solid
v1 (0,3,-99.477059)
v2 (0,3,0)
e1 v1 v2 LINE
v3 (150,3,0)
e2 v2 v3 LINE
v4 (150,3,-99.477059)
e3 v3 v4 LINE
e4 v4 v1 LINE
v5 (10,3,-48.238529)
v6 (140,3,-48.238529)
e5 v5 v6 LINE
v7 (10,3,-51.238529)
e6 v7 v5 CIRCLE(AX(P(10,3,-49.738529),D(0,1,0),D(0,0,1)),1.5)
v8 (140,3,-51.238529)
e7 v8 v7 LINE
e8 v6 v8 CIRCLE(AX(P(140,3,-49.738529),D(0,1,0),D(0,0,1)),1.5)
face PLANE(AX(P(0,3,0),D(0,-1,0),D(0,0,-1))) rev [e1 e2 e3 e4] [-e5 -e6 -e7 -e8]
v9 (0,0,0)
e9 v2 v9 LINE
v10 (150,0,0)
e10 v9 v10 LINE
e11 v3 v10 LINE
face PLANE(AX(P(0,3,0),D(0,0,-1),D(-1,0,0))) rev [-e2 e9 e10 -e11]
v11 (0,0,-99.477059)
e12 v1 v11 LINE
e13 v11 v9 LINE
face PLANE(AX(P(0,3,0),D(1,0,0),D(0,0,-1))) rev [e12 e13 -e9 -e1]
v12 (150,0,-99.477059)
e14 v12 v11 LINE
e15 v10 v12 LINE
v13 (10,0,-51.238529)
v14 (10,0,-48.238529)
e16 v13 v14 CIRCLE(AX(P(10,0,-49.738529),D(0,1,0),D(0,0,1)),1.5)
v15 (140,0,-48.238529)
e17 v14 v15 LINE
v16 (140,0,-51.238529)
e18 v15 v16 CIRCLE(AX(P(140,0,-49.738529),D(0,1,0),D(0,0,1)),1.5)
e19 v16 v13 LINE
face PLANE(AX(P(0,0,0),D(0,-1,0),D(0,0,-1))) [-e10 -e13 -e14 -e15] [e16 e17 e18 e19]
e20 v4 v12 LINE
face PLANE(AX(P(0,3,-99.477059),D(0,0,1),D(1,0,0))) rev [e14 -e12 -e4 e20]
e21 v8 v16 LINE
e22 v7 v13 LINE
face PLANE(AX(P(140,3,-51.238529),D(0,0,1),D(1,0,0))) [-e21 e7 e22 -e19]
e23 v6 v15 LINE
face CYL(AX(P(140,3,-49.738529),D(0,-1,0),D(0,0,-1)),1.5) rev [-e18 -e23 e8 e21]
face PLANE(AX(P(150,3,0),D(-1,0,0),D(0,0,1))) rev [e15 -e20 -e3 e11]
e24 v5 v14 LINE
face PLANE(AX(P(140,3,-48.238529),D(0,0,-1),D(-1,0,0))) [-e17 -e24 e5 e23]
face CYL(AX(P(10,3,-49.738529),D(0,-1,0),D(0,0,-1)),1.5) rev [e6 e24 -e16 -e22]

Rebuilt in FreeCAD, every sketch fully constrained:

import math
import FreeCAD as App
import Part
import Sketcher
Q = App.Units.Quantity


def add_polygon(sketch, points):
    """Adds a closed chain of lines whose ends are joined by coincident constraints."""
    first, n = sketch.GeometryCount, len(points)
    for a, b in zip(points, points[1:] + points[:1]):
        sketch.addGeometry(Part.LineSegment(App.Vector(*a, 0), App.Vector(*b, 0)), False)
    for i in range(n):
        sketch.addConstraint(Sketcher.Constraint("Coincident", first + i, 2, first + (i + 1) % n, 1))

doc = App.newDocument("Part")
body = doc.addObject("PartDesign::Body", "Body")

# Sketch on XZ plane
sketch1 = body.newObject("Sketcher::SketchObject", "Sketch")
sketch1.AttachmentSupport = (doc.getObject("XZ_Plane"), [""])
sketch1.MapMode = "FlatFace"
add_polygon(sketch1, [(0, -99.477059), (0, 0), (150, 0), (150, -99.477059)])  # lines 0-3
sketch1.addGeometry(Part.ArcOfCircle(Part.Circle(App.Vector(140, -49.738529, 0), App.Vector(0, 0, 1), 1.5), math.radians(-90), math.radians(90)), False)  # 4
sketch1.addGeometry(Part.LineSegment(App.Vector(140, -48.238529, 0), App.Vector(10, -48.238529, 0)), False)  # 5
sketch1.addGeometry(Part.ArcOfCircle(Part.Circle(App.Vector(10, -49.738529, 0), App.Vector(0, 0, 1), 1.5), math.radians(90), math.radians(270)), False)  # 6
sketch1.addGeometry(Part.LineSegment(App.Vector(10, -51.238529, 0), App.Vector(140, -51.238529, 0)), False)  # 7
sketch1.addConstraint([
    Sketcher.Constraint("Tangent", 4, 2, 5, 1),
    Sketcher.Constraint("Tangent", 5, 2, 6, 1),
    Sketcher.Constraint("Tangent", 6, 2, 7, 1),
    Sketcher.Constraint("Tangent", 7, 2, 4, 1),
    Sketcher.Constraint("Vertical", 0),
    Sketcher.Constraint("Horizontal", 1),
    Sketcher.Constraint("Vertical", 2),
    Sketcher.Constraint("Horizontal", 3),
    Sketcher.Constraint("Horizontal", 5),
    Sketcher.Constraint("Horizontal", 7),
    Sketcher.Constraint("Coincident", 0, 2, -1, 1),
    Sketcher.Constraint("Radius", 4, Q("1.5 mm")),
    Sketcher.Constraint("DistanceX", 1, 1, 1, 2, Q("150 mm")),
    Sketcher.Constraint("DistanceX", 5, 2, 5, 1, Q("130 mm")),
    Sketcher.Constraint("DistanceX", -1, 1, 4, 3, Q("140 mm")),
    Sketcher.Constraint("DistanceY", 0, 1, 0, 2, Q("99.477059 mm")),
    Sketcher.Constraint("DistanceY", 4, 3, -1, 1, Q("49.738529 mm")),
])
pad1 = body.newObject("PartDesign::Pad", "Pad")
pad1.Profile = sketch1
pad1.Length = 3
pad1.Reversed = True

doc.recompute()
